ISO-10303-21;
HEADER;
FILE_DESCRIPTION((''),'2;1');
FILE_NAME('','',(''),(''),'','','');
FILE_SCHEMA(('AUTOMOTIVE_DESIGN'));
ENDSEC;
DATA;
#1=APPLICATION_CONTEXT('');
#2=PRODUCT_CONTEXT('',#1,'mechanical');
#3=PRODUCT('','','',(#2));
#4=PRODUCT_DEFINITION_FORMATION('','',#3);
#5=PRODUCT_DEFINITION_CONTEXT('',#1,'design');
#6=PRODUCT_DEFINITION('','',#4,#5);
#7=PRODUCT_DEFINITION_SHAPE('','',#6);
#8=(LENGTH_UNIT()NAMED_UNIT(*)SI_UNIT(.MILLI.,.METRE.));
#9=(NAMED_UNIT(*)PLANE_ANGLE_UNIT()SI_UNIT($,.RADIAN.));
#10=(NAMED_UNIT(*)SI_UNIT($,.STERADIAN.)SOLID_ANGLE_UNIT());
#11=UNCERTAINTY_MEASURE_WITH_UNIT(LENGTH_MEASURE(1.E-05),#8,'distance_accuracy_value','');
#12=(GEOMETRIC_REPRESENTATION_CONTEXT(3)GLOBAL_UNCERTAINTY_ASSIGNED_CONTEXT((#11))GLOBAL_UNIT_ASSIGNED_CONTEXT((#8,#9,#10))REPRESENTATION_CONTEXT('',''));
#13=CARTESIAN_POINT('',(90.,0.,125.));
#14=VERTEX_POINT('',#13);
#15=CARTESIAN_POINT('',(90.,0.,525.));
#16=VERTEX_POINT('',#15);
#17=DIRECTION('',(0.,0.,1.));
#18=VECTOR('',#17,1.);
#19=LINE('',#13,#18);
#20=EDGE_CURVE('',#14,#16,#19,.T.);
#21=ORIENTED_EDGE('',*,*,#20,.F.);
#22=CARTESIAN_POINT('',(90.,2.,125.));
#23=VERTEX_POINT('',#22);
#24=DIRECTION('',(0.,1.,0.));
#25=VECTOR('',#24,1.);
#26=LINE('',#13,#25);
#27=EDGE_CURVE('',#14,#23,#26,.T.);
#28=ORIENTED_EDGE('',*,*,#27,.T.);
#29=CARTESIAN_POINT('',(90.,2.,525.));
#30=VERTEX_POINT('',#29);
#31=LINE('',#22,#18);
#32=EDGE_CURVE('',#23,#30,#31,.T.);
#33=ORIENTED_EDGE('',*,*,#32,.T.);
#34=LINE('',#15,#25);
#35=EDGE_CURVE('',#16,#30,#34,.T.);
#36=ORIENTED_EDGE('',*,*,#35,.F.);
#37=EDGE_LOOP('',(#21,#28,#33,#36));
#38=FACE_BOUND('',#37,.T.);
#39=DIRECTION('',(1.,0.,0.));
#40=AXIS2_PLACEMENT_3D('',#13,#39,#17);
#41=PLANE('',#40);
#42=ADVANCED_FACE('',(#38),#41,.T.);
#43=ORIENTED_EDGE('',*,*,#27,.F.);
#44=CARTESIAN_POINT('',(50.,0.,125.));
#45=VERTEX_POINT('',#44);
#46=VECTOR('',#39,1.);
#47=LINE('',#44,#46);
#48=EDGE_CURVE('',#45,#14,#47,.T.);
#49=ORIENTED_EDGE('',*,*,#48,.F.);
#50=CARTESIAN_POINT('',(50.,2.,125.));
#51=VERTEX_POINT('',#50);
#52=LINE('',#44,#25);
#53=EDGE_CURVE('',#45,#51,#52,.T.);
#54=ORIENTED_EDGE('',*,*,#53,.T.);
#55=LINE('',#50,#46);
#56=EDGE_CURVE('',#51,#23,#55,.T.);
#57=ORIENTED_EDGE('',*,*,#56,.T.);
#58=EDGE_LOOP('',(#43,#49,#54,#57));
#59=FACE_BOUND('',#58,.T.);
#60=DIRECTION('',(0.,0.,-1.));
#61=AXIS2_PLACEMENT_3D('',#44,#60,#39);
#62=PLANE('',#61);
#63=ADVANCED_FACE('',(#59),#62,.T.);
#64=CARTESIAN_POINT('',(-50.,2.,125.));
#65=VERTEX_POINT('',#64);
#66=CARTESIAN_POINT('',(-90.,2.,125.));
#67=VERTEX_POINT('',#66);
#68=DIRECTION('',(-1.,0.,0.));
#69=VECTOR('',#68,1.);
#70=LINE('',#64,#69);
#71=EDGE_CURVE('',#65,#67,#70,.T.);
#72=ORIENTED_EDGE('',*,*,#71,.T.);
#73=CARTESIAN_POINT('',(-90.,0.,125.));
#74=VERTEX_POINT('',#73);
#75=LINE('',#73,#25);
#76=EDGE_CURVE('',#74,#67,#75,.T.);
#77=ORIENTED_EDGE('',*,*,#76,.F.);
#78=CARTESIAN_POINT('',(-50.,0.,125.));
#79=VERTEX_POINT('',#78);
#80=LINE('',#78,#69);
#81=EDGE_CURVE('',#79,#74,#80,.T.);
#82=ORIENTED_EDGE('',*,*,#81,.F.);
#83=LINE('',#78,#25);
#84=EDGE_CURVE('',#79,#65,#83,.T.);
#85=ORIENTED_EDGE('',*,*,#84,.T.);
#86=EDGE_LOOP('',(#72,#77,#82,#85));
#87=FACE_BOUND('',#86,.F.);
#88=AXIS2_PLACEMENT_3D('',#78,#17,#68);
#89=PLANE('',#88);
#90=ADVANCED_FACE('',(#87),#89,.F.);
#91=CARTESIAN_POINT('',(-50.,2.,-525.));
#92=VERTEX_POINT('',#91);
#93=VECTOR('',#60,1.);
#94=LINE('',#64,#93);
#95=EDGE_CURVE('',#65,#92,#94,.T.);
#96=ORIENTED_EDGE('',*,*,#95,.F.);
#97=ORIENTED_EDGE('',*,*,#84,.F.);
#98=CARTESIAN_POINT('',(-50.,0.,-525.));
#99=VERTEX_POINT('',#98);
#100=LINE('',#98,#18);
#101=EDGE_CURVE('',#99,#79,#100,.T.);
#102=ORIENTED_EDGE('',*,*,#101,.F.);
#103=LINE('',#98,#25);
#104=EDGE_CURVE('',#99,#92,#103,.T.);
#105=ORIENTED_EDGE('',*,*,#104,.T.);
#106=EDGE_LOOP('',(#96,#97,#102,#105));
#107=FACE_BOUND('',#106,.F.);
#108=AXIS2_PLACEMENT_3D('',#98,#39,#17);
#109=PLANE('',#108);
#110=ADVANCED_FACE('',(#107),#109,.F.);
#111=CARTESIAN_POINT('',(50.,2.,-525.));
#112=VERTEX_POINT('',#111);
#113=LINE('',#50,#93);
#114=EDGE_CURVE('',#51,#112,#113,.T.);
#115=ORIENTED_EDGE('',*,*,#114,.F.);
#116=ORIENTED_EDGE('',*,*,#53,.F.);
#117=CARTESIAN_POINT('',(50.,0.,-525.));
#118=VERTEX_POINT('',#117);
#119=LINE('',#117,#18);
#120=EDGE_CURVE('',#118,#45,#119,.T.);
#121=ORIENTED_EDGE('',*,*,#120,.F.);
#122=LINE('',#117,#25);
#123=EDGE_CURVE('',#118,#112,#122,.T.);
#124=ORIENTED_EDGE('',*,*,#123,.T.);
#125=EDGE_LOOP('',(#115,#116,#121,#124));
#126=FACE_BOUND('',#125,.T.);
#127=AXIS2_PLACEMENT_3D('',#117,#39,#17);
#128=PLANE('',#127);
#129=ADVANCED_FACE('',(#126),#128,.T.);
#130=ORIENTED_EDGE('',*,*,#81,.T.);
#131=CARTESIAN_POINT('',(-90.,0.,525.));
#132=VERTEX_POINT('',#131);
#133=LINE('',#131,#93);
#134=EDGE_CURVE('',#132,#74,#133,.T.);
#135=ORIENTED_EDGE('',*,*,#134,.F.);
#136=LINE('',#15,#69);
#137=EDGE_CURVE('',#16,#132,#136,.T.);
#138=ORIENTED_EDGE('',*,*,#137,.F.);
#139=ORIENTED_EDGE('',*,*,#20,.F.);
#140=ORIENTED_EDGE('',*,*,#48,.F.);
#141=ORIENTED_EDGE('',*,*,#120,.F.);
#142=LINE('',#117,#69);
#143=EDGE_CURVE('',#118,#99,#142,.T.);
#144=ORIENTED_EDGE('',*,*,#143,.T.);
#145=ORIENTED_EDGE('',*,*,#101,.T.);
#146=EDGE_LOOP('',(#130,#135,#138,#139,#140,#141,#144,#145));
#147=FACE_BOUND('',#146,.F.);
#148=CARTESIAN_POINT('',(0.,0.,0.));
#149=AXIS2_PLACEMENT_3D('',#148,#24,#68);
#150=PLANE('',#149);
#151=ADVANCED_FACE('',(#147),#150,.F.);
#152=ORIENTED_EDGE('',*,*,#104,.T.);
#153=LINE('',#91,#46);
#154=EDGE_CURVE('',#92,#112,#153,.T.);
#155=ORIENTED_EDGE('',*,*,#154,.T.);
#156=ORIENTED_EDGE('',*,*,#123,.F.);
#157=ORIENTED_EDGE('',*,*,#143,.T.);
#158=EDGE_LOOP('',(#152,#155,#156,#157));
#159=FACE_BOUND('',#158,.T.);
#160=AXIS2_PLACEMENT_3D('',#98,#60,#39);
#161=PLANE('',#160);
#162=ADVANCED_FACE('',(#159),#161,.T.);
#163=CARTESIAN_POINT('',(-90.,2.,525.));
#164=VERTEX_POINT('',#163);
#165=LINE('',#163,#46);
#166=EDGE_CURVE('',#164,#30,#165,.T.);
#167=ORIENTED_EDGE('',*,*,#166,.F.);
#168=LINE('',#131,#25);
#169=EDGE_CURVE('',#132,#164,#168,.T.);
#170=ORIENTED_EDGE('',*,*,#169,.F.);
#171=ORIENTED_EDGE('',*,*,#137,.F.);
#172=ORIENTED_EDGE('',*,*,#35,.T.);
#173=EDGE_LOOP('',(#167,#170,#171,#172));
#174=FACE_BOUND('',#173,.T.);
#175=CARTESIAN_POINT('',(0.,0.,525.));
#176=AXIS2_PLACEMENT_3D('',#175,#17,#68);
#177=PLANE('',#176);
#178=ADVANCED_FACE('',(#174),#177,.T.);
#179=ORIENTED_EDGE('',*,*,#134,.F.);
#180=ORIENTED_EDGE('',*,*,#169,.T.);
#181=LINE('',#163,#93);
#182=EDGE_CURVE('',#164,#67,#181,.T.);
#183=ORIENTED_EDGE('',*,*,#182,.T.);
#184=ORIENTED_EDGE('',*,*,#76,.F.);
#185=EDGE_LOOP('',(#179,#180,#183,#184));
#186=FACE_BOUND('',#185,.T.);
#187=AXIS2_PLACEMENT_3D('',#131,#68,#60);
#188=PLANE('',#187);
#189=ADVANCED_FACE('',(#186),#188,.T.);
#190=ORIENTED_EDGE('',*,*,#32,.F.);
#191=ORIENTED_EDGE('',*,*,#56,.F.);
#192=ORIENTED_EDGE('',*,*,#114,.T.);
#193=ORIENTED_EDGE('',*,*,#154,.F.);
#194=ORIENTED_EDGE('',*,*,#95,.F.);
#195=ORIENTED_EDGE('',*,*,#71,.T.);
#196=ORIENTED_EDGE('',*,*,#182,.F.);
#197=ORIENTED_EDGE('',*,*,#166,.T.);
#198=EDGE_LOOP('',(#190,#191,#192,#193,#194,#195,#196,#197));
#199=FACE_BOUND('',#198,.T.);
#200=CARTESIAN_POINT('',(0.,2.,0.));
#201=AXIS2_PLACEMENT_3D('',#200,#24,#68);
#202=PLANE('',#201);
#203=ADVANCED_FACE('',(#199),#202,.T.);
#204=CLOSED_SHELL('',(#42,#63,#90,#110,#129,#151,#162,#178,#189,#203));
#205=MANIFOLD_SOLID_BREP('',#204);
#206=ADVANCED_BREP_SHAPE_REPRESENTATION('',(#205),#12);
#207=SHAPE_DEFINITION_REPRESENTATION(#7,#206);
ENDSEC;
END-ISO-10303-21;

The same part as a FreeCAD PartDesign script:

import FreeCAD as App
import Part
import Sketcher

V = App.Vector
Q = App.Units.Quantity

doc = App.newDocument("Part")
body = doc.addObject("PartDesign::Body", "Body")

sketch1 = body.newObject("Sketcher::SketchObject", "Sketch")
sketch1.AttachmentSupport = (doc.getObject("XZ_Plane"), [""])
sketch1.MapMode = "FlatFace"
sketch1.addGeometry(Part.LineSegment(V(-50, -525, 0), V(-50, 125, 0)), False)
sketch1.addGeometry(Part.LineSegment(V(-50, 125, 0), V(-90, 125, 0)), False)
sketch1.addGeometry(Part.LineSegment(V(-90, 125, 0), V(-90, 525, 0)), False)
sketch1.addGeometry(Part.LineSegment(V(-90, 525, 0), V(90, 525, 0)), False)
sketch1.addGeometry(Part.LineSegment(V(90, 525, 0), V(90, 125, 0)), False)
sketch1.addGeometry(Part.LineSegment(V(90, 125, 0), V(50, 125, 0)), False)
sketch1.addGeometry(Part.LineSegment(V(50, 125, 0), V(50, -525, 0)), False)
sketch1.addGeometry(Part.LineSegment(V(50, -525, 0), V(-50, -525, 0)), False)
sketch1.addConstraint(Sketcher.Constraint("Coincident", 0, 2, 1, 1))
sketch1.addConstraint(Sketcher.Constraint("Coincident", 1, 2, 2, 1))
sketch1.addConstraint(Sketcher.Constraint("Coincident", 2, 2, 3, 1))
sketch1.addConstraint(Sketcher.Constraint("Coincident", 3, 2, 4, 1))
sketch1.addConstraint(Sketcher.Constraint("Coincident", 4, 2, 5, 1))
sketch1.addConstraint(Sketcher.Constraint("Coincident", 5, 2, 6, 1))
sketch1.addConstraint(Sketcher.Constraint("Coincident", 6, 2, 7, 1))
sketch1.addConstraint(Sketcher.Constraint("Coincident", 7, 2, 0, 1))
sketch1.addConstraint(Sketcher.Constraint("Vertical", 0))
sketch1.addConstraint(Sketcher.Constraint("Horizontal", 1))
sketch1.addConstraint(Sketcher.Constraint("Vertical", 2))
sketch1.addConstraint(Sketcher.Constraint("Horizontal", 3))
sketch1.addConstraint(Sketcher.Constraint("Vertical", 4))
sketch1.addConstraint(Sketcher.Constraint("Horizontal", 5))
sketch1.addConstraint(Sketcher.Constraint("Vertical", 6))
sketch1.addConstraint(Sketcher.Constraint("Horizontal", 7))
sketch1.addConstraint(Sketcher.Constraint("Symmetric", 1, 2, 4, 2, -2))
sketch1.addConstraint(Sketcher.Constraint("Equal", 1, 5))
sketch1.addConstraint(Sketcher.Constraint("DistanceX", 1, 2, 1, 1, Q("40 mm")))
sketch1.addConstraint(Sketcher.Constraint("DistanceX", 3, 1, 3, 2, Q("180 mm")))
sketch1.addConstraint(Sketcher.Constraint("DistanceY", 0, 1, 0, 2, Q("650 mm")))
sketch1.addConstraint(Sketcher.Constraint("DistanceY", 6, 2, 3, 2, Q("1050 mm")))
sketch1.addConstraint(Sketcher.Constraint("DistanceY", -1, 1, 0, 2, Q("125 mm")))
pad1 = body.newObject("PartDesign::Pad", "Pad")
pad1.Profile = sketch1
pad1.Length = 2
pad1.Reversed = True

doc.recompute()
